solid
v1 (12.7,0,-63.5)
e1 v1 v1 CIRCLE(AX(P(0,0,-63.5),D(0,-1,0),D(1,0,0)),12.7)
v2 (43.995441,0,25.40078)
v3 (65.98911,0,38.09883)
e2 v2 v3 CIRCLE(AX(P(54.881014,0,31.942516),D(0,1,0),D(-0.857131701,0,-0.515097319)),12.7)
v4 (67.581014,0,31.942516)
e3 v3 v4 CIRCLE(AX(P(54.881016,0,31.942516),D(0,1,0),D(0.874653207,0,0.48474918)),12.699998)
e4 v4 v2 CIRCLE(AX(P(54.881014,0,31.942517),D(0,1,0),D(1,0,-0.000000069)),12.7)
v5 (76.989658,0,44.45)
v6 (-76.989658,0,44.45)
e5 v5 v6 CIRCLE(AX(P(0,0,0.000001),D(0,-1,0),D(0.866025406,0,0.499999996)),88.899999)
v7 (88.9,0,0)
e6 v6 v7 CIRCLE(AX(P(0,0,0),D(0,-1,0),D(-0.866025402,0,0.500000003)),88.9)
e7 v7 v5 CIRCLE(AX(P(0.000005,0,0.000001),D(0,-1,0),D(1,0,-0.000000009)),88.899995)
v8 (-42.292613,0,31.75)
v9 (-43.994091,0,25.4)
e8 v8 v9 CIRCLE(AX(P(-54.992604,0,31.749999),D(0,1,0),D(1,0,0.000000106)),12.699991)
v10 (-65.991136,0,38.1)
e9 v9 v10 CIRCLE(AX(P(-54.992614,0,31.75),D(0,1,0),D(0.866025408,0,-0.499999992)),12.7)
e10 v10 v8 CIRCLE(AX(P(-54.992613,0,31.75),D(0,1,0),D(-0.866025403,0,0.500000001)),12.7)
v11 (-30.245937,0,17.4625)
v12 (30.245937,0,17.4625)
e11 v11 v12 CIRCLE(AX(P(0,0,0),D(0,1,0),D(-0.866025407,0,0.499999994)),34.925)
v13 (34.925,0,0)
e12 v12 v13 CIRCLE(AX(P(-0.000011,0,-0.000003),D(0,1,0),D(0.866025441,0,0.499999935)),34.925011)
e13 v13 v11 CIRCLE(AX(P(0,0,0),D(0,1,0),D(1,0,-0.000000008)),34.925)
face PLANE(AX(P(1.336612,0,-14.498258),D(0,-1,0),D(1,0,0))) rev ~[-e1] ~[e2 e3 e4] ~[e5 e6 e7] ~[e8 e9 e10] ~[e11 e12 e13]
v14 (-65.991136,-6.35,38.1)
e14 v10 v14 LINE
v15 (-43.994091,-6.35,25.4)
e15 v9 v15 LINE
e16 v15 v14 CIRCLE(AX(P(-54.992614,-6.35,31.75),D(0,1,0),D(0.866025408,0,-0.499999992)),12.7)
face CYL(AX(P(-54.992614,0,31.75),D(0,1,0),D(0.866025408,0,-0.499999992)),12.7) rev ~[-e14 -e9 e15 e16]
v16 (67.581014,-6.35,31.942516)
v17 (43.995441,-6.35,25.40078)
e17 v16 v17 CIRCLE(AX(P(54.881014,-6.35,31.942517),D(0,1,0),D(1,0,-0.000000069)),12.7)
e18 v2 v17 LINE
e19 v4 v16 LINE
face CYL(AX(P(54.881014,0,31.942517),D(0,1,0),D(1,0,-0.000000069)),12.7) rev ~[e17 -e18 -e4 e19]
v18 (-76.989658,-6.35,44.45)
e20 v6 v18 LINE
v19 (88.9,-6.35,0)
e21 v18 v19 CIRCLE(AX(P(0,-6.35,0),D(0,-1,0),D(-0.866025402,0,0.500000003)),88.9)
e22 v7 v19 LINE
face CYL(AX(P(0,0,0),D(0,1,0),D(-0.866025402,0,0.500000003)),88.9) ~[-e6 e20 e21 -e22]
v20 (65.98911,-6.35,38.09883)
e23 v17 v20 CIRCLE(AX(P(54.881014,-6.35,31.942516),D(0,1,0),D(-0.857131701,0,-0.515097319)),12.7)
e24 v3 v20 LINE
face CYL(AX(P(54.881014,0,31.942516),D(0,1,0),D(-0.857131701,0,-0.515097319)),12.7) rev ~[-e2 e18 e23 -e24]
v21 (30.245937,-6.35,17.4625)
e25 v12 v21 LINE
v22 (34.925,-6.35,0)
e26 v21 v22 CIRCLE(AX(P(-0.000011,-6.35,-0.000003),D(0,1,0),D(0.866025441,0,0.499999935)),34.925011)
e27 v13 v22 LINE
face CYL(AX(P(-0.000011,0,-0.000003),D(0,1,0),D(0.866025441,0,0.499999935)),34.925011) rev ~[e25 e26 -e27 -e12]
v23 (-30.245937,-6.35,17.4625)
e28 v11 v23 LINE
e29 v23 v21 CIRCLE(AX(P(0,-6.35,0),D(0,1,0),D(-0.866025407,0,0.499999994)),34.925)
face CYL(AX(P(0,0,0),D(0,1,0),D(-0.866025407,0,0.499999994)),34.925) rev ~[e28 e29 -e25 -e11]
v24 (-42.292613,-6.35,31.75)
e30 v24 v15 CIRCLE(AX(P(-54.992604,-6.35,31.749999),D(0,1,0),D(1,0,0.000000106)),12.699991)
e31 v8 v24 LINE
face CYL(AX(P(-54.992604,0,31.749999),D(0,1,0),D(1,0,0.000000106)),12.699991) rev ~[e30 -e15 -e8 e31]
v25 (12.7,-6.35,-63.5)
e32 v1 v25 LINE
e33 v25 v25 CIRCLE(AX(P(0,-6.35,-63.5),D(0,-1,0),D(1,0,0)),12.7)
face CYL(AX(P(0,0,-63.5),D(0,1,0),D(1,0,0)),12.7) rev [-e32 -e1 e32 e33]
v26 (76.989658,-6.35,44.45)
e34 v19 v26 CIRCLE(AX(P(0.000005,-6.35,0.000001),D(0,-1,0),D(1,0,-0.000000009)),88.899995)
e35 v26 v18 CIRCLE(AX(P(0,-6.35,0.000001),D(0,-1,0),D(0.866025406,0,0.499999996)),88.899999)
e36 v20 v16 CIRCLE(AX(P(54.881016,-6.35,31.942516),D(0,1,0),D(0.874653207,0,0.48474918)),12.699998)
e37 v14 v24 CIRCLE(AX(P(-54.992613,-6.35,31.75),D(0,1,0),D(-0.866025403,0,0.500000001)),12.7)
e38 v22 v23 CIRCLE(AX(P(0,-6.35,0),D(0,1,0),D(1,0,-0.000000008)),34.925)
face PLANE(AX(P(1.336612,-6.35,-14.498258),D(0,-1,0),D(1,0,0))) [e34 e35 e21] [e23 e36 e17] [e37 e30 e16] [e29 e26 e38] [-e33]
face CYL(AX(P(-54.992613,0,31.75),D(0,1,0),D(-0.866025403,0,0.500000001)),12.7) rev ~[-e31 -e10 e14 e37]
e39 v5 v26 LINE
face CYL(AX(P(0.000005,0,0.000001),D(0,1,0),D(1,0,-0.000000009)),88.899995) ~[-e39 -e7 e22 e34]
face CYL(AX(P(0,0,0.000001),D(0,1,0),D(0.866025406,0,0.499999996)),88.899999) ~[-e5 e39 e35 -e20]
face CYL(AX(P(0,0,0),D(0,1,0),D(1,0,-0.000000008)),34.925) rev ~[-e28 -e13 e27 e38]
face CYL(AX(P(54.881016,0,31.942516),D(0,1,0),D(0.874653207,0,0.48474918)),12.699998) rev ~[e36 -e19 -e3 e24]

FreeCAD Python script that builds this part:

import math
import FreeCAD as App
import Part
import Sketcher
from FreeCAD import Vector
Q = App.Units.Quantity

doc = App.newDocument("Part")
body = doc.addObject("PartDesign::Body", "Body")

# Sketch on XZ plane
sketch1 = body.newObject("Sketcher::SketchObject", "Sketch")
sketch1.AttachmentSupport = (doc.getObject("XZ_Plane"), [""])
sketch1.MapMode = "FlatFace"
sketch1.addGeometry(Part.ArcOfCircle(Part.Circle(Vector(0, 0, 0), Vector(0, 0, 1), 89), math.radians(0), math.radians(30)), False)
sketch1.addGeometry(Part.ArcOfCircle(Part.Circle(Vector(0, 0, 0), Vector(0, 0, 1), 89), math.radians(30), math.radians(150)), False)
sketch1.addGeometry(Part.ArcOfCircle(Part.Circle(Vector(0, 0, 0), Vector(0, 0, 1), 89), math.radians(150), math.radians(360)), False)
sketch1.addGeometry(Part.ArcOfCircle(Part.Circle(Vector(55, 32, 0), Vector(0, 0, 1), 13), math.radians(-149), math.radians(0)), False)
sketch1.addGeometry(Part.ArcOfCircle(Part.Circle(Vector(55, 32, 0), Vector(0, 0, 1), 13), math.radians(29), math.radians(211)), False)
sketch1.addGeometry(Part.ArcOfCircle(Part.Circle(Vector(55, 32, 0), Vector(0, 0, 1), 13), math.radians(0), math.radians(29)), False)
sketch1.addGeometry(Part.ArcOfCircle(Part.Circle(Vector(0, 0, 0), Vector(0, 0, 1), 35), math.radians(0), math.radians(30)), False)
sketch1.addGeometry(Part.ArcOfCircle(Part.Circle(Vector(0, 0, 0), Vector(0, 0, 1), 35), math.radians(150), math.radians(360)), False)
sketch1.addGeometry(Part.ArcOfCircle(Part.Circle(Vector(0, 0, 0), Vector(0, 0, 1), 35), math.radians(30), math.radians(150)), False)
sketch1.addGeometry(Part.ArcOfCircle(Part.Circle(Vector(-55, 32, 0), Vector(0, 0, 1), 13), math.radians(150), math.radians(330)), False)
sketch1.addGeometry(Part.ArcOfCircle(Part.Circle(Vector(-55, 32, 0), Vector(0, 0, 1), 13), math.radians(0), math.radians(150)), False)
sketch1.addGeometry(Part.ArcOfCircle(Part.Circle(Vector(-55, 32, 0), Vector(0, 0, 1), 13), math.radians(-30), math.radians(0)), False)
sketch1.addGeometry(Part.Circle(Vector(0, -64, 0), Vector(0, 0, 1), 13), False)
sketch1.addConstraint(Sketcher.Constraint("Tangent", 0, 2, 1, 1))
sketch1.addConstraint(Sketcher.Constraint("Tangent", 1, 2, 2, 1))
sketch1.addConstraint(Sketcher.Constraint("Tangent", 2, 2, 0, 1))
sketch1.addConstraint(Sketcher.Constraint("Tangent", 3, 1, 4, 2))
sketch1.addConstraint(Sketcher.Constraint("Tangent", 4, 1, 5, 2))
sketch1.addConstraint(Sketcher.Constraint("Tangent", 5, 1, 3, 2))
sketch1.addConstraint(Sketcher.Constraint("Tangent", 6, 1, 7, 2))
sketch1.addConstraint(Sketcher.Constraint("Tangent", 7, 1, 8, 2))
sketch1.addConstraint(Sketcher.Constraint("Tangent", 8, 1, 6, 2))
sketch1.addConstraint(Sketcher.Constraint("Tangent", 9, 1, 10, 2))
sketch1.addConstraint(Sketcher.Constraint("Tangent", 10, 1, 11, 2))
sketch1.addConstraint(Sketcher.Constraint("Tangent", 11, 1, 9, 2))
sketch1.addConstraint(Sketcher.Constraint("Coincident", 0, 3, -1, 1))
sketch1.addConstraint(Sketcher.Constraint("Coincident", 7, 3, -1, 1))
sketch1.addConstraint(Sketcher.Constraint("Equal", 4, 9))
sketch1.addConstraint(Sketcher.Constraint("Equal", 10, 12))
sketch1.addConstraint(Sketcher.Constraint("PointOnObject", 12, 3, -2))
sketch1.addConstraint(Sketcher.Constraint("PointOnObject", 2, 2, -1))
sketch1.addConstraint(Sketcher.Constraint("PointOnObject", 6, 1, -1))
sketch1.addConstraint(Sketcher.Constraint("Horizontal", 0, 2, 1, 2))
sketch1.addConstraint(Sketcher.Constraint("Horizontal", 4, 3, 5, 1))
sketch1.addConstraint(Sketcher.Constraint("Horizontal", 7, 1, 8, 1))
sketch1.addConstraint(Sketcher.Constraint("Horizontal", 11, 3, 10, 1))
sketch1.addConstraint(Sketcher.Constraint("Diameter", 12, Q("1 in")))
sketch1.addConstraint(Sketcher.Constraint("Radius", 1, Q("3.5 in")))
sketch1.addConstraint(Sketcher.Constraint("DistanceY", -1, 1, 11, 1, Q("1 in")))
sketch1.addConstraint(Sketcher.Constraint("Radius", 7, Q("1.375 in")))
sketch1.addConstraint(Sketcher.Constraint("DistanceY", 12, 3, -1, 1, Q("2.5 in")))
sketch1.addConstraint(Sketcher.Constraint("DistanceY", -1, 1, 9, 1, Q("1.5 in")))
sketch1.addConstraint(Sketcher.Constraint("DistanceY", 9, 3, 1, 2, Q("0.5 in")))
sketch1.addConstraint(Sketcher.Constraint("DistanceY", -1, 1, 9, 3, Q("1.25 in")))
sketch1.addConstraint(Sketcher.Constraint("DistanceY", -1, 1, 7, 1, Q("0.6875 in")))
sketch1.addConstraint(Sketcher.Constraint("DistanceX", 10, 3, 6, 3, Q("54.992602 mm")))
sketch1.addConstraint(Sketcher.Constraint("DistanceX", -1, 1, 3, 1, Q("43.995441 mm")))
sketch1.addConstraint(Sketcher.Constraint("DistanceY", -1, 1, 3, 1, Q("25.40078 mm")))
sketch1.addConstraint(Sketcher.Constraint("DistanceX", -1, 1, 4, 1, Q("65.98911 mm")))
sketch1.addConstraint(Sketcher.Constraint("DistanceY", -1, 1, 4, 1, Q("38.09883 mm")))
pad1 = body.newObject("PartDesign::Pad", "Pad")
pad1.Profile = sketch1
pad1.Length = Q("0.25 in")

doc.recompute()
